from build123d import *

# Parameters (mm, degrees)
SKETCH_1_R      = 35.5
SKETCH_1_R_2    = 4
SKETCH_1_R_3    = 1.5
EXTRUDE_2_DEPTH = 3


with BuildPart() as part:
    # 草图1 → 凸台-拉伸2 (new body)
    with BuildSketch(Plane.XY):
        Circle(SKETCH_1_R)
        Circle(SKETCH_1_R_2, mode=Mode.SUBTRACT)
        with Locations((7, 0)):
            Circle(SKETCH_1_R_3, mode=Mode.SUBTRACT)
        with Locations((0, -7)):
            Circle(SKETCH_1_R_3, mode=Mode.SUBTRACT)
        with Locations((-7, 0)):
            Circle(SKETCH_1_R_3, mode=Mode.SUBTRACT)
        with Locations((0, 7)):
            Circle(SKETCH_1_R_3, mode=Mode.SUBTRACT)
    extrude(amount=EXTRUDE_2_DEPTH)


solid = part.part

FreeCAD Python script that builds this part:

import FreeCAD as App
import Part
import Sketcher

V = App.Vector

doc = App.newDocument("Part")
body = doc.addObject("PartDesign::Body", "Body")

# Sketch on XY plane
sketch1 = body.newObject("Sketcher::SketchObject", "Sketch")
sketch1.AttachmentSupport = (doc.getObject("XY_Plane"), [""])
sketch1.MapMode = "FlatFace"
sketch1.addGeometry([
    Part.Circle(V(0, 0, 0), V(0, 0, 1), 35.5),  # 0
    Part.Circle(V(0, -7, 0), V(0, 0, 1), 1.5),  # 1
    Part.Circle(V(-7, 0, 0), V(0, 0, 1), 1.5),  # 2
    Part.Circle(V(0, 0, 0), V(0, 0, 1), 4),  # 3
    Part.Circle(V(7, 0, 0), V(0, 0, 1), 1.5),  # 4
    Part.Circle(V(0, 7, 0), V(0, 0, 1), 1.5),  # 5
], False)
sketch1.addConstraint([
    Sketcher.Constraint("Coincident", 0, 3, -1, 1),
    Sketcher.Constraint("Coincident", 3, 3, -1, 1),
    Sketcher.Constraint("Equal", 1, 2),
    Sketcher.Constraint("Equal", 2, 4),
    Sketcher.Constraint("Equal", 4, 5),
    Sketcher.Constraint("Symmetric", 2, 3, 4, 3, -1, 1),
    Sketcher.Constraint("Symmetric", 1, 3, 5, 3, -1, 1),
    Sketcher.Constraint("PointOnObject", 1, 3, -2),
    Sketcher.Constraint("PointOnObject", 2, 3, -1),
    Sketcher.Constraint("Diameter", 0, 71.0),
    Sketcher.Constraint("Diameter", 1, 3.0),
    Sketcher.Constraint("Diameter", 3, 8.0),
    Sketcher.Constraint("DistanceY", 1, 3, -1, 1, 7.0),
    Sketcher.Constraint("DistanceX", 2, 3, -1, 1, 7.0),
])
pad1 = body.newObject("PartDesign::Pad", "Pad")
pad1.Profile = sketch1
pad1.Length = 3

doc.recompute()
